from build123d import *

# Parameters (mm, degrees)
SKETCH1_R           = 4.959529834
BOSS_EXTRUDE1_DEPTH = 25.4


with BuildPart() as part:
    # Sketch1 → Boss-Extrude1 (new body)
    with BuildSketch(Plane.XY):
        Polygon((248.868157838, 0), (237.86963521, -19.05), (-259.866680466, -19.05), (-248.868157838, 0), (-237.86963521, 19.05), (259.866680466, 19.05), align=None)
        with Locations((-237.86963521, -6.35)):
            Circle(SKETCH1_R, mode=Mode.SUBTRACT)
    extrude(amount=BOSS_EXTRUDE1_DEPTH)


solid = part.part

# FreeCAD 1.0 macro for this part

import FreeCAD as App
import Part
import Sketcher
Q = App.Units.Quantity

doc = App.newDocument("Part")
body = doc.addObject("PartDesign::Body", "Body")

sketch1 = body.newObject("Sketcher::SketchObject", "Sketch")
sketch1.AttachmentSupport = (doc.getObject("XY_Plane"), [""])
sketch1.MapMode = "FlatFace"
sketch1.addGeometry(Part.LineSegment(App.Vector(237.9, -19.1, 0), App.Vector(259.9, 19.1, 0)), False)
sketch1.addGeometry(Part.LineSegment(App.Vector(259.9, 19.1, 0), App.Vector(-237.9, 19.1, 0)), False)
sketch1.addGeometry(Part.LineSegment(App.Vector(-237.9, 19.1, 0), App.Vector(-259.9, -19.1, 0)), False)
sketch1.addGeometry(Part.LineSegment(App.Vector(-259.9, -19.1, 0), App.Vector(237.9, -19.1, 0)), False)
sketch1.addGeometry(Part.Circle(App.Vector(-237.9, -6.3, 0), App.Vector(0, 0, 1), 5), False)
sketch1.addConstraint(Sketcher.Constraint("Coincident", 0, 2, 1, 1))
sketch1.addConstraint(Sketcher.Constraint("Coincident", 1, 2, 2, 1))
sketch1.addConstraint(Sketcher.Constraint("Coincident", 2, 2, 3, 1))
sketch1.addConstraint(Sketcher.Constraint("Coincident", 3, 2, 0, 1))
sketch1.addConstraint(Sketcher.Constraint("Horizontal", 1))
sketch1.addConstraint(Sketcher.Constraint("Horizontal", 3))
sketch1.addConstraint(Sketcher.Constraint("Symmetric", 0, 2, 2, 2, -1, 1))
sketch1.addConstraint(Sketcher.Constraint("Parallel", 0, 2))
sketch1.addConstraint(Sketcher.Constraint("Vertical", 4, 3, 1, 2))
sketch1.addConstraint(Sketcher.Constraint("Angle", 0, Q("60 deg")))
sketch1.addConstraint(Sketcher.Constraint("DistanceY", 4, 3, 0, 2, Q("1 in")))
sketch1.addConstraint(Sketcher.Constraint("DistanceY", 2, 2, 4, 3, Q("0.5 in")))
sketch1.addConstraint(Sketcher.Constraint("Diameter", 4, Q("9.91906 mm")))
sketch1.addConstraint(Sketcher.Constraint("DistanceX", 1, 2, 1, 1, Q("497.736316 mm")))
pad1 = body.newObject("PartDesign::Pad", "Pad")
pad1.Profile = sketch1
pad1.Length = Q("1 in")

doc.recompute()
